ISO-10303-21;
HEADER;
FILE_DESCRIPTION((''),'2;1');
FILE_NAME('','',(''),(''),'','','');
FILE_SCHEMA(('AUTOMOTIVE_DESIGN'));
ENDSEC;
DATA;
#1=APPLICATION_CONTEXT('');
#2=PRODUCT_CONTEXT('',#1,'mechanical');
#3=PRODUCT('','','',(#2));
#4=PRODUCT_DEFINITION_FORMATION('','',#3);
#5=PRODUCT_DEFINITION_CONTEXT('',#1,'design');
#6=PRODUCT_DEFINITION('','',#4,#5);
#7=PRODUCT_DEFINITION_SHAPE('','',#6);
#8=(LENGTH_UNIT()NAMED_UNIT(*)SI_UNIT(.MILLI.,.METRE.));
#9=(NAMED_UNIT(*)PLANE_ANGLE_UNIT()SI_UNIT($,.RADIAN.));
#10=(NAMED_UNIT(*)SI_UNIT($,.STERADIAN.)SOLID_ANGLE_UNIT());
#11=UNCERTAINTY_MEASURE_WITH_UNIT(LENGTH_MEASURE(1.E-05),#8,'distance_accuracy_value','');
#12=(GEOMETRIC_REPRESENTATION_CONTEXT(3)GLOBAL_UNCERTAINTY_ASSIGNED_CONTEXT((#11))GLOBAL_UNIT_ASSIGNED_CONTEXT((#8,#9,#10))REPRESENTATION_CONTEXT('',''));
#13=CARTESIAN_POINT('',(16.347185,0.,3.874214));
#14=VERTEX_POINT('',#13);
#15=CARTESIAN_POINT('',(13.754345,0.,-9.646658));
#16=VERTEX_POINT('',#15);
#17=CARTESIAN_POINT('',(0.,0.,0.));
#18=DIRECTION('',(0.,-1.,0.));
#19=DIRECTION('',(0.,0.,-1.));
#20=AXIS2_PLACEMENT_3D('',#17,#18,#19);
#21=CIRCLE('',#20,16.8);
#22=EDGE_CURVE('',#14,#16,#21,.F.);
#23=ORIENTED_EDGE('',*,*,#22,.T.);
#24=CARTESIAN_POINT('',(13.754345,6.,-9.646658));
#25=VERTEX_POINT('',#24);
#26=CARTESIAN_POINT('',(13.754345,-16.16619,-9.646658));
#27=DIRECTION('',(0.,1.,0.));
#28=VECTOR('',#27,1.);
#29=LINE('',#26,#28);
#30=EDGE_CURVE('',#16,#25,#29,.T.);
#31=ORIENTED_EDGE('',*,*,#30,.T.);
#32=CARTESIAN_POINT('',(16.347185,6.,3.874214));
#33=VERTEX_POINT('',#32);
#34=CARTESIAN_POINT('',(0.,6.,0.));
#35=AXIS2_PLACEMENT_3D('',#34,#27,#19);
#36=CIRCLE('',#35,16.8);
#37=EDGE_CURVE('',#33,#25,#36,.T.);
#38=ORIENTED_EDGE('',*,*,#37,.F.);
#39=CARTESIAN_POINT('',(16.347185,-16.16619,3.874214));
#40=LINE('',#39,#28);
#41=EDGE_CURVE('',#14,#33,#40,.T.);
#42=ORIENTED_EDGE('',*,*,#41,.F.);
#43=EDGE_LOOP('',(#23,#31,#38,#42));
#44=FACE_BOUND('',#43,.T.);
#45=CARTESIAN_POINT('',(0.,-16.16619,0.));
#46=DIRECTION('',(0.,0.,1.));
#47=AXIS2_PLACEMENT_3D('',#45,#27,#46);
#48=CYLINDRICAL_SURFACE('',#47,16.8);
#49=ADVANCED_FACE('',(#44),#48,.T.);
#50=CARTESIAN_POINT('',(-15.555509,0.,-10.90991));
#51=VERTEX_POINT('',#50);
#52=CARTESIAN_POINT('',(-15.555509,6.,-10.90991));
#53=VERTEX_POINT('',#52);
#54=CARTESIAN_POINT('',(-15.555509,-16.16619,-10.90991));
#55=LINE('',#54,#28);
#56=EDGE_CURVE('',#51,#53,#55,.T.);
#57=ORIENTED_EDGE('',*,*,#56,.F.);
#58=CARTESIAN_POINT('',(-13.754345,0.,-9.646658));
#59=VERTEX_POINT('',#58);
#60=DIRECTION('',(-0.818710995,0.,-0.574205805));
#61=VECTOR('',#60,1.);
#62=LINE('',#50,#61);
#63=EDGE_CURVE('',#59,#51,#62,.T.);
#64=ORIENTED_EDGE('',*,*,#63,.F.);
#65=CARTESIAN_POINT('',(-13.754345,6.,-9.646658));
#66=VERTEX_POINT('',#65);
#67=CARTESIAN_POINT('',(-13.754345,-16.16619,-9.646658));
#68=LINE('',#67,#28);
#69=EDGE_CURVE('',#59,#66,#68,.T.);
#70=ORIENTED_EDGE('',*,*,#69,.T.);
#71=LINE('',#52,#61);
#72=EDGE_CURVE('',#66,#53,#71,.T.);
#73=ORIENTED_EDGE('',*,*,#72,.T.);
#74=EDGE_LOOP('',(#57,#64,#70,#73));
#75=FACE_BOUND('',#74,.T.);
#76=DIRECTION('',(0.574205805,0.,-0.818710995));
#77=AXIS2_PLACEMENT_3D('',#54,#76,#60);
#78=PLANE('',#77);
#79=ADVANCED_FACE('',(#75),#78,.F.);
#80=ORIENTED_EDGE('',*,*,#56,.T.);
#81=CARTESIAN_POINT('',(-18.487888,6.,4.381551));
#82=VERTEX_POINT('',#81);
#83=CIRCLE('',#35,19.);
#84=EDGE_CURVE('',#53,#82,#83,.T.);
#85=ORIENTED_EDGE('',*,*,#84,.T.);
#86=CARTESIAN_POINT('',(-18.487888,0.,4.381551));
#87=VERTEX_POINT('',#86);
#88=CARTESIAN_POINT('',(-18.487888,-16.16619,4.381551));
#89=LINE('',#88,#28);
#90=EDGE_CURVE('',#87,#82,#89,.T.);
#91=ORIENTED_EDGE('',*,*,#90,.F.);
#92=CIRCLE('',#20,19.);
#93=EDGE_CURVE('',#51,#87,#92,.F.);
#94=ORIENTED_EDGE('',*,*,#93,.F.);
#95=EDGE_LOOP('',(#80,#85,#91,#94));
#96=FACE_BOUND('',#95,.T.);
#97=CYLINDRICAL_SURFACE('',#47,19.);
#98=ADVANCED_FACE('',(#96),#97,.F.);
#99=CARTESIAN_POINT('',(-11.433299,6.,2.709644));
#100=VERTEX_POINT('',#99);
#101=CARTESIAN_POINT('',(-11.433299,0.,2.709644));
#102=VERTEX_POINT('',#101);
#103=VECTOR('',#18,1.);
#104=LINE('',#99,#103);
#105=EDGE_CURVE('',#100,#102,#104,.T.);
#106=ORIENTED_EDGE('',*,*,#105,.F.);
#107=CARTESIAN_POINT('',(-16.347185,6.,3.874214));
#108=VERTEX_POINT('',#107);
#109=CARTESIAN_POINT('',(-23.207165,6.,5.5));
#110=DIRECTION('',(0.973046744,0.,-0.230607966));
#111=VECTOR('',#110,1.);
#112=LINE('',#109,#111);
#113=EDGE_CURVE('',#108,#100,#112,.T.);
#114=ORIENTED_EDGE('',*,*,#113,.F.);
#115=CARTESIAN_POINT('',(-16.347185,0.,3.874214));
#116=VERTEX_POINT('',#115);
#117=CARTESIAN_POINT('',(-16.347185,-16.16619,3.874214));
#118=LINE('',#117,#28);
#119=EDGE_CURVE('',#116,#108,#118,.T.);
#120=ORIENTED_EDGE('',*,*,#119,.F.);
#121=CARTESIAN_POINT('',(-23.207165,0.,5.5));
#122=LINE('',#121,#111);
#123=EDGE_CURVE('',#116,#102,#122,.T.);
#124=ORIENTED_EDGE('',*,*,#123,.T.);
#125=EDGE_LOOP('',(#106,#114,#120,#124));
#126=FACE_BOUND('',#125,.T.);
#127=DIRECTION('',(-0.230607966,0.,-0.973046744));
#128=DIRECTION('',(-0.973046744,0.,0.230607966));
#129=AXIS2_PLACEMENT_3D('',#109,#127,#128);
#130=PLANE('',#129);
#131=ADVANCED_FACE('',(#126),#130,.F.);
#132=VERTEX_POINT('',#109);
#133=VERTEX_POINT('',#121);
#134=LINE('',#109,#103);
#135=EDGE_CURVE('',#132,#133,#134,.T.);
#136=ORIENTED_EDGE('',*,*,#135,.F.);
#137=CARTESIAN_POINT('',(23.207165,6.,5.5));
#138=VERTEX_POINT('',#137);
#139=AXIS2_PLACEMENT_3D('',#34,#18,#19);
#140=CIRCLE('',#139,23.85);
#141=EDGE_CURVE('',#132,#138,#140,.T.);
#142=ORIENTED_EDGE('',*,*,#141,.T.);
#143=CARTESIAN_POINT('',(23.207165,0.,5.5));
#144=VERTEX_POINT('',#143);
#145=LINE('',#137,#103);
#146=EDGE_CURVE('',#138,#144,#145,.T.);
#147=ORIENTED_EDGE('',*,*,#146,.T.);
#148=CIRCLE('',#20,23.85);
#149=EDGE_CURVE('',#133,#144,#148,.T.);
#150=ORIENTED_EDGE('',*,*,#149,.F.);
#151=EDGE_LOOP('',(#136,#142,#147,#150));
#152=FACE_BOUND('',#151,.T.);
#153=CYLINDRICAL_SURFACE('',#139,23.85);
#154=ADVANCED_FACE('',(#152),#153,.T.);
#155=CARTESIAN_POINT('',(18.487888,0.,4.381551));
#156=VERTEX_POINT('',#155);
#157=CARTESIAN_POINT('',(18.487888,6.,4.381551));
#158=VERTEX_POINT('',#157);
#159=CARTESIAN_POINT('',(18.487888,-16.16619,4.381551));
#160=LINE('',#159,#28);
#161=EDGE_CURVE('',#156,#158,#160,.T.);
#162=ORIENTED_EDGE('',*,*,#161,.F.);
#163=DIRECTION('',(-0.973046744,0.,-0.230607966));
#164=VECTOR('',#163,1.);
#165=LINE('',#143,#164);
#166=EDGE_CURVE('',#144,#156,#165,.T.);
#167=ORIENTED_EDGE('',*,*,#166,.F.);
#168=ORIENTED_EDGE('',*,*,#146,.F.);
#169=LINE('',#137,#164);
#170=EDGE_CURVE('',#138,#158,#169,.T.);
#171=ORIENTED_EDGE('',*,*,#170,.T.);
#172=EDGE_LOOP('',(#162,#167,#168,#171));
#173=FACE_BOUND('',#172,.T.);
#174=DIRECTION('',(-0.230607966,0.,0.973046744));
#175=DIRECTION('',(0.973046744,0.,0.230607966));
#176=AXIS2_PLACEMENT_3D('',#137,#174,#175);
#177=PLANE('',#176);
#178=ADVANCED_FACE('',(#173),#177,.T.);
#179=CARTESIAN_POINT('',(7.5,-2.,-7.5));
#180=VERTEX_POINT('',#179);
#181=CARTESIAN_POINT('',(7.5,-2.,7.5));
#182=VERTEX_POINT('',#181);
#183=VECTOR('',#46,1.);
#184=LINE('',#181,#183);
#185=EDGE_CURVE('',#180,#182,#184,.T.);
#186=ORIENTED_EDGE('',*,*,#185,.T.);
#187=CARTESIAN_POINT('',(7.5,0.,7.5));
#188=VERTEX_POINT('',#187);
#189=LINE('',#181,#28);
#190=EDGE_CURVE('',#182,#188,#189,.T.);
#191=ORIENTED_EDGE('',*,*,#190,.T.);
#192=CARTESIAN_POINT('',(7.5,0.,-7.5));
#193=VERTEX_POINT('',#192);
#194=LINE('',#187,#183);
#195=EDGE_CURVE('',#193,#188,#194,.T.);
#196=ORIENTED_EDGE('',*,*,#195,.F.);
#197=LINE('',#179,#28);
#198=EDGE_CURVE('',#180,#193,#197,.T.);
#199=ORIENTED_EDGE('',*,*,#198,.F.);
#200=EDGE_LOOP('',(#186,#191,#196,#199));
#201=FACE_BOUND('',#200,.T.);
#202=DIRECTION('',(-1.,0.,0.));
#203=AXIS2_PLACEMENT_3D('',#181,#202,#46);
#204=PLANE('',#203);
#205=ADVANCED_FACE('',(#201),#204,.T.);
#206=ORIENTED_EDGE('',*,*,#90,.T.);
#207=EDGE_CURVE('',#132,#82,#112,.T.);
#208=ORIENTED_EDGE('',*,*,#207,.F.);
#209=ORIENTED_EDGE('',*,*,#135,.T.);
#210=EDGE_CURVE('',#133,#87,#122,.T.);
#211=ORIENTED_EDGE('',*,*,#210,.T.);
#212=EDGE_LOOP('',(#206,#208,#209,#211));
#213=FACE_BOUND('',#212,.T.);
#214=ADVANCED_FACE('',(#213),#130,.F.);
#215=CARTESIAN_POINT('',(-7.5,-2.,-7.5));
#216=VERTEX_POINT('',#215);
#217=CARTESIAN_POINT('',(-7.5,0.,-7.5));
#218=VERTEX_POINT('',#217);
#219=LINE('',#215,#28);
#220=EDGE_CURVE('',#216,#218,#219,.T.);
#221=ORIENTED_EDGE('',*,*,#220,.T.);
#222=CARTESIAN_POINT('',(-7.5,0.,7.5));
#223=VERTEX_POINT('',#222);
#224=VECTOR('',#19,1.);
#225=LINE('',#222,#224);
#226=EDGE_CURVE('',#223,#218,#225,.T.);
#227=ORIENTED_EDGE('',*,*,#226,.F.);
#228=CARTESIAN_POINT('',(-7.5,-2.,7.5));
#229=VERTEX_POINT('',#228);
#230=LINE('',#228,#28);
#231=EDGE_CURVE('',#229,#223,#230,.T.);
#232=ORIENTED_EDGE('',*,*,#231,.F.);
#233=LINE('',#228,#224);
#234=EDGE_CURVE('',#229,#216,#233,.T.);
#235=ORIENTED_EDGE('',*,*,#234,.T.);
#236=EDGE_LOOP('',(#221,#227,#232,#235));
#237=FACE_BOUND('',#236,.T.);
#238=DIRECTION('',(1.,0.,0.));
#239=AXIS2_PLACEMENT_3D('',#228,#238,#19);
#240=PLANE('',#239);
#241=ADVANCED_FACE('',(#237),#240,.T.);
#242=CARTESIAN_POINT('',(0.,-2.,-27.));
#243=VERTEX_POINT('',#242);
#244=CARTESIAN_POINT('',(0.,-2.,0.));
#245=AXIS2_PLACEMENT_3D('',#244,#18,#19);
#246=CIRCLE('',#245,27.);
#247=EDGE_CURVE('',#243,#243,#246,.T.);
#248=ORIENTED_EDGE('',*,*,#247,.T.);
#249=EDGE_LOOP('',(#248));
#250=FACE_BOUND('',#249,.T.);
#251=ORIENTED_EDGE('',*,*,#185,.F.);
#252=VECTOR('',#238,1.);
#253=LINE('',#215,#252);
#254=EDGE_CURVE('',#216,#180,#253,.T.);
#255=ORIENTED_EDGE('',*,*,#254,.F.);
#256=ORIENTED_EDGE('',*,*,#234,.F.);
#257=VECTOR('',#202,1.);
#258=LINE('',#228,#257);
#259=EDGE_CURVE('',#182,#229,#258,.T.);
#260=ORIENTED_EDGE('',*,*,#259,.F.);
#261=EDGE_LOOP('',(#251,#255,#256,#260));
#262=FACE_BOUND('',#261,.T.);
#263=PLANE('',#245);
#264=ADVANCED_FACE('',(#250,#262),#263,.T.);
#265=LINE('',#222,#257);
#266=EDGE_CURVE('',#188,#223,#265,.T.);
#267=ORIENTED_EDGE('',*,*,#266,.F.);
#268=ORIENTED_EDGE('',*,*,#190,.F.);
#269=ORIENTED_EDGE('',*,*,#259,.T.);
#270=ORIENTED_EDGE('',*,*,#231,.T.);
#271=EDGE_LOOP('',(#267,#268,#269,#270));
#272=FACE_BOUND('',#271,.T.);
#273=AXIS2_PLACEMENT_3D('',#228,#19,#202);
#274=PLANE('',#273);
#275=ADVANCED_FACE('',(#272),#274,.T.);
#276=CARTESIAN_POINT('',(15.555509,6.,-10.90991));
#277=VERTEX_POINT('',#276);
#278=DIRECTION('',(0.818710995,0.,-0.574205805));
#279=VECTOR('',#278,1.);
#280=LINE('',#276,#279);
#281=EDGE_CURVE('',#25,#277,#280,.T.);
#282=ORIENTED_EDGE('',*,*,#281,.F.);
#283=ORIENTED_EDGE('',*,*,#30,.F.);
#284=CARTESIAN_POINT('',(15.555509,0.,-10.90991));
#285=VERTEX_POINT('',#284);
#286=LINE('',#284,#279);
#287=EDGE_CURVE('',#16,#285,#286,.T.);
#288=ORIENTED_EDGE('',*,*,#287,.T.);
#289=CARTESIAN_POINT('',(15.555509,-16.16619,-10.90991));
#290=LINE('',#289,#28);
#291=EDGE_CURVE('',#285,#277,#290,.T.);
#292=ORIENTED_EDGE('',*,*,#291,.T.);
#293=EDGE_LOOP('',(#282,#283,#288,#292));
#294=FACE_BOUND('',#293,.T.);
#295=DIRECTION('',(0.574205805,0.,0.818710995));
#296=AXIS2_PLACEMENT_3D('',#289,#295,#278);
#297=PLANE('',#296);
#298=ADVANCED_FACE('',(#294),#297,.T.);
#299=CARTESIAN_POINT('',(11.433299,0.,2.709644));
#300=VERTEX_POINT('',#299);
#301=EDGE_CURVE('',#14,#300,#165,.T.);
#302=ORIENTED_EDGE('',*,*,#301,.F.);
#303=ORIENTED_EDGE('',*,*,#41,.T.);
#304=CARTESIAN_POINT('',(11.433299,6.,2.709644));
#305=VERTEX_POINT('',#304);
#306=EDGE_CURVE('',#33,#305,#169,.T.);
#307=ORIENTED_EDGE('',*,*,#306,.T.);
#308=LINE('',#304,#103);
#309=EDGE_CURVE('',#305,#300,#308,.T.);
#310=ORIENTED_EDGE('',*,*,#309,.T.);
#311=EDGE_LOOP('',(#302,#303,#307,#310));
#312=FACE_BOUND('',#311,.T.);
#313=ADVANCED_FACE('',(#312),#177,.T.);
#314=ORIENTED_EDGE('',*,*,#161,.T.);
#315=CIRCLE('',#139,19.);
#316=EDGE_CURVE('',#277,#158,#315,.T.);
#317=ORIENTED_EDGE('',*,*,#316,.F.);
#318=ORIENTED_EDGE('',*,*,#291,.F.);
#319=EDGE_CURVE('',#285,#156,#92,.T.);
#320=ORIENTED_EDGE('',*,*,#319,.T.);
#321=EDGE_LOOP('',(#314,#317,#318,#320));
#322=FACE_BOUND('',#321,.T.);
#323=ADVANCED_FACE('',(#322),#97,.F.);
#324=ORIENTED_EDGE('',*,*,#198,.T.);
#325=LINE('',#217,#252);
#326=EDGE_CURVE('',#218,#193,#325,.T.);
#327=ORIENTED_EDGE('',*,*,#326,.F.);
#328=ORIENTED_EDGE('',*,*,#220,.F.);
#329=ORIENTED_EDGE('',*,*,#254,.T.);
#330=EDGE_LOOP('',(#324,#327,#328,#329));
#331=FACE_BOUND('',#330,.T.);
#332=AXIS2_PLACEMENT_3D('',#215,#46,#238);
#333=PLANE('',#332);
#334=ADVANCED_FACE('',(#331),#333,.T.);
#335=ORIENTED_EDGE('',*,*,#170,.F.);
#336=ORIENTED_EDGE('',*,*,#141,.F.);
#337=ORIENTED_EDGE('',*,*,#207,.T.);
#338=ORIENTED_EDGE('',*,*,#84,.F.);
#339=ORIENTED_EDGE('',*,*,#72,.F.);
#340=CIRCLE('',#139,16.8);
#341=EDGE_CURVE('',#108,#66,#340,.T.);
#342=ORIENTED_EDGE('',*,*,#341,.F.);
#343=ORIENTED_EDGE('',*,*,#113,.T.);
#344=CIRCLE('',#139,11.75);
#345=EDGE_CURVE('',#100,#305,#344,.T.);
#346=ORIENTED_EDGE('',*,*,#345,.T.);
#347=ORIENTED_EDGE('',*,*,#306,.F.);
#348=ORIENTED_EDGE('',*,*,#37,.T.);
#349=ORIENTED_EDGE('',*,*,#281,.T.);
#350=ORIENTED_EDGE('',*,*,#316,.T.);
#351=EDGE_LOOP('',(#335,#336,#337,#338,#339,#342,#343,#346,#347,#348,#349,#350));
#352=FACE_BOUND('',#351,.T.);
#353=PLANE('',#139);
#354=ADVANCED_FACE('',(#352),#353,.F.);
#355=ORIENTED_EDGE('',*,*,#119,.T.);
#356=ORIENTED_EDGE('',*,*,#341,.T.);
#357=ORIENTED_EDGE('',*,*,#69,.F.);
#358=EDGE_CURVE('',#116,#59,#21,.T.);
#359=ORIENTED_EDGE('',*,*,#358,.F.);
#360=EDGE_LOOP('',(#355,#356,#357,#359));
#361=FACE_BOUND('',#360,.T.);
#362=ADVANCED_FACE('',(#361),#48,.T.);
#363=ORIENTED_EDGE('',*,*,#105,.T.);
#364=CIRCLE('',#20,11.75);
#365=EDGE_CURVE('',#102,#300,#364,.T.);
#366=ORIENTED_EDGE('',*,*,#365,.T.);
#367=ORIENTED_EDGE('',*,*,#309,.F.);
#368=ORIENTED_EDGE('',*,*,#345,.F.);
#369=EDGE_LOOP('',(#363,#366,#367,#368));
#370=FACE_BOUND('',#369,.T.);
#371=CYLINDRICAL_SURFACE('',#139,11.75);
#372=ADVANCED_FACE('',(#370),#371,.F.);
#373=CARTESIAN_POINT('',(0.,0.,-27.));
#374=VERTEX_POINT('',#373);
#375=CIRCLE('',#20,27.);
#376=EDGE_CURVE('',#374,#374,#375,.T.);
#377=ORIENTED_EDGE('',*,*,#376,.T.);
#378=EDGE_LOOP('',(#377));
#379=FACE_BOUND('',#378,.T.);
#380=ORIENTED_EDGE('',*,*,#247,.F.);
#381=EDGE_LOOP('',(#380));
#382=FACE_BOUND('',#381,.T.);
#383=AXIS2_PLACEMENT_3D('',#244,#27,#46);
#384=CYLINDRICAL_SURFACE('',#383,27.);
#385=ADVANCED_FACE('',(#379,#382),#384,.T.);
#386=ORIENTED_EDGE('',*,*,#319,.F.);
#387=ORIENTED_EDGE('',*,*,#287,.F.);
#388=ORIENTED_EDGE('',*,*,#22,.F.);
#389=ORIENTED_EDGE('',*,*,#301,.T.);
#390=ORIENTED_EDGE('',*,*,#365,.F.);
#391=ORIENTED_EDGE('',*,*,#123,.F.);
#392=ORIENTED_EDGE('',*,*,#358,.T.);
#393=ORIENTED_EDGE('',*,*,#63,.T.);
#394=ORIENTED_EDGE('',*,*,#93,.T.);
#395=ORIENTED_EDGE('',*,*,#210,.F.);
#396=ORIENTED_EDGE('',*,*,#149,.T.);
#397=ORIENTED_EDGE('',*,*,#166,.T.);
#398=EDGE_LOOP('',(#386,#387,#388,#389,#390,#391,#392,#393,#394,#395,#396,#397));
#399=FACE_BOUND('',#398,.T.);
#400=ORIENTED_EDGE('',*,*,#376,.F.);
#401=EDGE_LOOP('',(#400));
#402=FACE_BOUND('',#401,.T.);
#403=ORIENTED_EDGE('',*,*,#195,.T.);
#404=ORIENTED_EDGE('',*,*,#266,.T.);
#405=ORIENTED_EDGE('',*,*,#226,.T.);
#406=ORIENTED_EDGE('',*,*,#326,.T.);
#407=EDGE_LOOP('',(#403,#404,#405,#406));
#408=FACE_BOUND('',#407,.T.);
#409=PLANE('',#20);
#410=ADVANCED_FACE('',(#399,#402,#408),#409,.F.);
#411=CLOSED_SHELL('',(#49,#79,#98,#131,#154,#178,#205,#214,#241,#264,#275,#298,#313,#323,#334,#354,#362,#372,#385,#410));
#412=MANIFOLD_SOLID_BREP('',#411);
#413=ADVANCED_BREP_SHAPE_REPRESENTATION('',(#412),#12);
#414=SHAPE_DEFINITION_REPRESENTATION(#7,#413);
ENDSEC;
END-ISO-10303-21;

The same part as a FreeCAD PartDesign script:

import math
import FreeCAD as App
import Part
import Sketcher

V = App.Vector

doc = App.newDocument("Part")
params = doc.addObject("Spreadsheet::Sheet", "Params")
for row, (alias, value) in enumerate([
    ("sketch1_radius", "11.75 mm"),
    ("sketch1_radius2", "23.85 mm"),
    ("pad1_length", "6 mm"),
    ("sketch2_diameter", "54 mm"),
    ("sketch2_width", "15 mm"),
    ("pad2_length", "2 mm"),
    ("sketch3_radius", "19 mm"),
    ("sketch3_radius2", "16.8 mm"),
    ("pocket1_length", "6 mm"),
], start=1):
    params.set(f"A{row}", alias)
    params.set(f"B{row}", "=" + value)
    params.setAlias(f"B{row}", alias)

body = doc.addObject("PartDesign::Body", "Body")

# Sketch on XZ plane
sketch1 = body.newObject("Sketcher::SketchObject", "Sketch")
sketch1.AttachmentSupport = (doc.getObject("XZ_Plane"), [""])
sketch1.MapMode = "FlatFace"
sketch1.addGeometry([
    Part.LineSegment(V(-23.207165, 5.5, 0), V(-11.433299, 2.709644, 0)),
    Part.ArcOfCircle(Part.Circle(V(0, 0, 0), V(0, 0, 1), 11.75), math.radians(166.667132), math.radians(373.332868)),
    Part.LineSegment(V(11.433299, 2.709644, 0), V(23.207165, 5.5, 0)),
    Part.ArcOfCircle(Part.Circle(V(0, 0, 0), V(0, 0, 1), 23.85), math.radians(166.667132), math.radians(373.332868)),
], False)
sketch1.addConstraint([
    Sketcher.Constraint("Coincident", 0, 2, 1, 1),
    Sketcher.Constraint("Coincident", 1, 2, 2, 1),
    Sketcher.Constraint("Coincident", 2, 2, 3, 2),
    Sketcher.Constraint("Coincident", 3, 1, 0, 1),
    Sketcher.Constraint("Coincident", 1, 3, -1, 1),
    Sketcher.Constraint("Coincident", 3, 3, -1, 1),
    Sketcher.Constraint("Horizontal", 0, 2, 1, 2),
    Sketcher.Constraint("Horizontal", 2, 2, 3, 1),
    Sketcher.Constraint("Radius", 1, 11.75),
    Sketcher.Constraint("Radius", 3, 23.85),
    Sketcher.Constraint("DistanceY", -1, 1, 2, 2, 5.5),
    Sketcher.Constraint("DistanceX", 0, 2, -1, 1, 11.433299),
])
sketch1.setExpression("Constraints[8]", "Params.sketch1_radius")
sketch1.setExpression("Constraints[9]", "Params.sketch1_radius2")
pad1 = body.newObject("PartDesign::Pad", "Pad")
pad1.Profile = sketch1
pad1.setExpression("Length", "Params.pad1_length")
pad1.Reversed = True

# Sketch on XZ plane
sketch2 = body.newObject("Sketcher::SketchObject", "Sketch001")
sketch2.AttachmentSupport = (doc.getObject("XZ_Plane"), [""])
sketch2.MapMode = "FlatFace"
sketch2.addGeometry([
    Part.Circle(V(0, 0, 0), V(0, 0, 1), 27),  # 0
    Part.LineSegment(V(7.5, -7.5, 0), V(-7.5, -7.5, 0)),  # 1
    Part.LineSegment(V(-7.5, -7.5, 0), V(-7.5, 7.5, 0)),  # 2
    Part.LineSegment(V(-7.5, 7.5, 0), V(7.5, 7.5, 0)),  # 3
    Part.LineSegment(V(7.5, 7.5, 0), V(7.5, -7.5, 0)),  # 4
], False)
sketch2.addConstraint([
    Sketcher.Constraint("Coincident", 1, 2, 2, 1),
    Sketcher.Constraint("Coincident", 2, 2, 3, 1),
    Sketcher.Constraint("Coincident", 3, 2, 4, 1),
    Sketcher.Constraint("Coincident", 4, 2, 1, 1),
    Sketcher.Constraint("Horizontal", 1),
    Sketcher.Constraint("Vertical", 2),
    Sketcher.Constraint("Horizontal", 3),
    Sketcher.Constraint("Vertical", 4),
    Sketcher.Constraint("Coincident", 0, 3, -1, 1),
    Sketcher.Constraint("Symmetric", 1, 2, 3, 2, -1, 1),
    Sketcher.Constraint("Equal", 3, 2),
    Sketcher.Constraint("Diameter", 0, 54.0),
    Sketcher.Constraint("DistanceX", 1, 2, 1, 1, 15.0),
])
sketch2.setExpression("Constraints[11]", "Params.sketch2_diameter")
sketch2.setExpression("Constraints[12]", "Params.sketch2_width")
pad2 = body.newObject("PartDesign::Pad", "Pad001")
pad2.Profile = sketch2
pad2.setExpression("Length", "Params.pad2_length")

# Sketch on XZ plane
sketch3 = body.newObject("Sketcher::SketchObject", "Sketch002")
sketch3.AttachmentSupport = (doc.getObject("XZ_Plane"), [""])
sketch3.MapMode = "FlatFace"
sketch3.AttachmentOffset = App.Placement(V(0, 0, -6), App.Rotation())
sketch3.addGeometry([
    Part.LineSegment(V(-13.754345, -9.646658, 0), V(-15.555509, -10.90991, 0)),
    Part.ArcOfCircle(Part.Circle(V(0, 0, 0), V(0, 0, 1), 19), math.radians(166.667132), math.radians(215.044033)),
    Part.LineSegment(V(-18.487888, 4.381551, 0), V(-16.347185, 3.874214, 0)),
    Part.ArcOfCircle(Part.Circle(V(0, 0, 0), V(0, 0, 1), 16.8), math.radians(166.667132), math.radians(215.044033)),
], False)
sketch3.addConstraint([
    Sketcher.Constraint("Coincident", 0, 2, 1, 2),
    Sketcher.Constraint("Coincident", 1, 1, 2, 1),
    Sketcher.Constraint("Coincident", 2, 2, 3, 1),
    Sketcher.Constraint("Coincident", 3, 2, 0, 1),
    Sketcher.Constraint("Coincident", 1, 3, -1, 1),
    Sketcher.Constraint("Coincident", 3, 3, -1, 1),
    Sketcher.Constraint("Radius", 1, 19.0),
    Sketcher.Constraint("Radius", 3, 16.8),
    Sketcher.Constraint("DistanceX", 0, 2, -1, 1, 15.555509),
    Sketcher.Constraint("DistanceX", 1, 1, -1, 1, 18.487888),
    Sketcher.Constraint("DistanceX", 2, 2, 3, 2, 2.592841),
    Sketcher.Constraint("DistanceY", 3, 2, 2, 2, 13.520871),
])
sketch3.setExpression("Constraints[6]", "Params.sketch3_radius")
sketch3.setExpression("Constraints[7]", "Params.sketch3_radius2")
pocket1 = body.newObject("PartDesign::Pocket", "Pocket")
pocket1.Profile = sketch3
pocket1.setExpression("Length", "Params.pocket1_length")
pocket1.Reversed = True
doc.recompute()

mirrored = body.newObject("PartDesign::Mirrored", "Mirrored")
mirrored.Originals = [pocket1]
mirrored.MirrorPlane = (doc.getObject("YZ_Plane"), [""])
body.Tip = mirrored

doc.recompute()
